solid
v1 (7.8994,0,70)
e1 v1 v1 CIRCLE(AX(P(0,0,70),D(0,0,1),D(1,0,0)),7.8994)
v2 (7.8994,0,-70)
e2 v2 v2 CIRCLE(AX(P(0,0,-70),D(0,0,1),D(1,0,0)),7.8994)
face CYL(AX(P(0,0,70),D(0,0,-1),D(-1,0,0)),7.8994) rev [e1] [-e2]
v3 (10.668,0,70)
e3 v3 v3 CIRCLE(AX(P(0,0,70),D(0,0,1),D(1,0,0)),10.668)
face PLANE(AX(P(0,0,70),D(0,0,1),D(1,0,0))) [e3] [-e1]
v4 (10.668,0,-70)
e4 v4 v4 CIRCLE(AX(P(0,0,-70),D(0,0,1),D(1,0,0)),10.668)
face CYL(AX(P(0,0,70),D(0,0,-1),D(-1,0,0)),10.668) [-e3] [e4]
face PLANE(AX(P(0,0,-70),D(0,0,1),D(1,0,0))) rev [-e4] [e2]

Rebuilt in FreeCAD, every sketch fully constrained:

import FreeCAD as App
import Part
import Sketcher
Q = App.Units.Quantity

doc = App.newDocument("Part")
body = doc.addObject("PartDesign::Body", "Body")

sketch1 = body.newObject("Sketcher::SketchObject", "Sketch")
sketch1.AttachmentSupport = (doc.getObject("XY_Plane"), [""])
sketch1.MapMode = "FlatFace"
sketch1.addGeometry([
    Part.Circle(App.Vector(0, 0, 0), App.Vector(0, 0, 1), 11),
    Part.Circle(App.Vector(0, 0, 0), App.Vector(0, 0, 1), 8),
], False)
sketch1.addConstraint([
    Sketcher.Constraint("Coincident", 0, 3, -1, 1),
    Sketcher.Constraint("Coincident", 1, 3, -1, 1),
    Sketcher.Constraint("Diameter", 0, Q("0.84 in")),
    Sketcher.Constraint("Diameter", 1, Q("0.622 in")),
])
pad1 = body.newObject("PartDesign::Pad", "Pad")
pad1.Profile = sketch1
pad1.Length = 140
pad1.Midplane = True

doc.recompute()
